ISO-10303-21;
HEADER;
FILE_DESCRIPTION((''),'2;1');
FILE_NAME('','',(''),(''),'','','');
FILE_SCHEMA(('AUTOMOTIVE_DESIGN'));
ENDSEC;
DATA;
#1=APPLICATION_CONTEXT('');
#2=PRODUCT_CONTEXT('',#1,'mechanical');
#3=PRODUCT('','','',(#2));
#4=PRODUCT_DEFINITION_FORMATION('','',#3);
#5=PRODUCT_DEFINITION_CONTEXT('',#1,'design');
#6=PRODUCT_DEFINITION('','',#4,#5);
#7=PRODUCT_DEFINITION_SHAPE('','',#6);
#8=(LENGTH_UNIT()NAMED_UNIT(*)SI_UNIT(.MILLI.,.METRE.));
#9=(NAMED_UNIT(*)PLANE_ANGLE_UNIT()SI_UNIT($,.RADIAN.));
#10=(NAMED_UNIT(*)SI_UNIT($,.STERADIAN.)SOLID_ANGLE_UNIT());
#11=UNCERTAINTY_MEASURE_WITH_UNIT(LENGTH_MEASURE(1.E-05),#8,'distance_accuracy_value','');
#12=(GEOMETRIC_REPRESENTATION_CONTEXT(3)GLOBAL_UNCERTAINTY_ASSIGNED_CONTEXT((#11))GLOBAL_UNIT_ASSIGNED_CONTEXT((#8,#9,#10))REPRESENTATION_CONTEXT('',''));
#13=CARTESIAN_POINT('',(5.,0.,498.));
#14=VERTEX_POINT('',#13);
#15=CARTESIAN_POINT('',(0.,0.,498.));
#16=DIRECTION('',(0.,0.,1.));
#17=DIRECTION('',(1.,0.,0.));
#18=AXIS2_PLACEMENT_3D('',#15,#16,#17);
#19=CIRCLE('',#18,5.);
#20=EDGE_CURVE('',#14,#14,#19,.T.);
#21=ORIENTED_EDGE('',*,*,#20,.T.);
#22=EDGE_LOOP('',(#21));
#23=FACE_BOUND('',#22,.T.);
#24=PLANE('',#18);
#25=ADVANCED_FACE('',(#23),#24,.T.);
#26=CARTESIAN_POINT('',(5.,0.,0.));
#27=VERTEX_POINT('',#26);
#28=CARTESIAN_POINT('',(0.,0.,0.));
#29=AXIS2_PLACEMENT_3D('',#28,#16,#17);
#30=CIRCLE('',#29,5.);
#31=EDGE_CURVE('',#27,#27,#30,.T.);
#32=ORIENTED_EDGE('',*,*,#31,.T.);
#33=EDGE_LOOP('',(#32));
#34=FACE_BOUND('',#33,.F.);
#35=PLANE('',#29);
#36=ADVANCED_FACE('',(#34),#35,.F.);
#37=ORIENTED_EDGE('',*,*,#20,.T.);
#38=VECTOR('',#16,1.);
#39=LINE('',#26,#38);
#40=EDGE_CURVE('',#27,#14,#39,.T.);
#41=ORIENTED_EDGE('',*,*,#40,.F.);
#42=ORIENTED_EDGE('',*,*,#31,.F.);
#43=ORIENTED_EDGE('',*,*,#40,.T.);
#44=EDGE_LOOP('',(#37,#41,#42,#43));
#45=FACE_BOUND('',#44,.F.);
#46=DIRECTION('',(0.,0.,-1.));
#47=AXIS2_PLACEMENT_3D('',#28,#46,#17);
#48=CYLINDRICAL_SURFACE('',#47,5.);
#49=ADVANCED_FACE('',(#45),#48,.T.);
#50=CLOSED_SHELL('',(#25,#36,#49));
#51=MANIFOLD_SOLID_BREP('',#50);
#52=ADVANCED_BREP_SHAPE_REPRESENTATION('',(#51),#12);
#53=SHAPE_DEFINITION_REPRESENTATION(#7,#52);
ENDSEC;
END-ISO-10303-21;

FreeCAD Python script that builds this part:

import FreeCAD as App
import Part
import Sketcher

V = App.Vector

doc = App.newDocument("Part")
body = doc.addObject("PartDesign::Body", "Body")

# Sketch on XY plane
sketch1 = doc.addObject("Sketcher::SketchObject", "Sketch")
body.addObject(sketch1)
sketch1.AttachmentSupport = (doc.XY_Plane, [""])
sketch1.MapMode = "FlatFace"
sketch1.addGeometry(Part.Circle(V(0, 0, 0), V(0, 0, 1), 5), False)
sketch1.addConstraint([
    Sketcher.Constraint("Coincident", 0, 3, -1, 1),
    Sketcher.Constraint("Diameter", 0, 10.0),
])
pad1 = doc.addObject("PartDesign::Pad", "Pad")
body.addObject(pad1)
pad1.Profile = sketch1
pad1.Length = 498

doc.recompute()
